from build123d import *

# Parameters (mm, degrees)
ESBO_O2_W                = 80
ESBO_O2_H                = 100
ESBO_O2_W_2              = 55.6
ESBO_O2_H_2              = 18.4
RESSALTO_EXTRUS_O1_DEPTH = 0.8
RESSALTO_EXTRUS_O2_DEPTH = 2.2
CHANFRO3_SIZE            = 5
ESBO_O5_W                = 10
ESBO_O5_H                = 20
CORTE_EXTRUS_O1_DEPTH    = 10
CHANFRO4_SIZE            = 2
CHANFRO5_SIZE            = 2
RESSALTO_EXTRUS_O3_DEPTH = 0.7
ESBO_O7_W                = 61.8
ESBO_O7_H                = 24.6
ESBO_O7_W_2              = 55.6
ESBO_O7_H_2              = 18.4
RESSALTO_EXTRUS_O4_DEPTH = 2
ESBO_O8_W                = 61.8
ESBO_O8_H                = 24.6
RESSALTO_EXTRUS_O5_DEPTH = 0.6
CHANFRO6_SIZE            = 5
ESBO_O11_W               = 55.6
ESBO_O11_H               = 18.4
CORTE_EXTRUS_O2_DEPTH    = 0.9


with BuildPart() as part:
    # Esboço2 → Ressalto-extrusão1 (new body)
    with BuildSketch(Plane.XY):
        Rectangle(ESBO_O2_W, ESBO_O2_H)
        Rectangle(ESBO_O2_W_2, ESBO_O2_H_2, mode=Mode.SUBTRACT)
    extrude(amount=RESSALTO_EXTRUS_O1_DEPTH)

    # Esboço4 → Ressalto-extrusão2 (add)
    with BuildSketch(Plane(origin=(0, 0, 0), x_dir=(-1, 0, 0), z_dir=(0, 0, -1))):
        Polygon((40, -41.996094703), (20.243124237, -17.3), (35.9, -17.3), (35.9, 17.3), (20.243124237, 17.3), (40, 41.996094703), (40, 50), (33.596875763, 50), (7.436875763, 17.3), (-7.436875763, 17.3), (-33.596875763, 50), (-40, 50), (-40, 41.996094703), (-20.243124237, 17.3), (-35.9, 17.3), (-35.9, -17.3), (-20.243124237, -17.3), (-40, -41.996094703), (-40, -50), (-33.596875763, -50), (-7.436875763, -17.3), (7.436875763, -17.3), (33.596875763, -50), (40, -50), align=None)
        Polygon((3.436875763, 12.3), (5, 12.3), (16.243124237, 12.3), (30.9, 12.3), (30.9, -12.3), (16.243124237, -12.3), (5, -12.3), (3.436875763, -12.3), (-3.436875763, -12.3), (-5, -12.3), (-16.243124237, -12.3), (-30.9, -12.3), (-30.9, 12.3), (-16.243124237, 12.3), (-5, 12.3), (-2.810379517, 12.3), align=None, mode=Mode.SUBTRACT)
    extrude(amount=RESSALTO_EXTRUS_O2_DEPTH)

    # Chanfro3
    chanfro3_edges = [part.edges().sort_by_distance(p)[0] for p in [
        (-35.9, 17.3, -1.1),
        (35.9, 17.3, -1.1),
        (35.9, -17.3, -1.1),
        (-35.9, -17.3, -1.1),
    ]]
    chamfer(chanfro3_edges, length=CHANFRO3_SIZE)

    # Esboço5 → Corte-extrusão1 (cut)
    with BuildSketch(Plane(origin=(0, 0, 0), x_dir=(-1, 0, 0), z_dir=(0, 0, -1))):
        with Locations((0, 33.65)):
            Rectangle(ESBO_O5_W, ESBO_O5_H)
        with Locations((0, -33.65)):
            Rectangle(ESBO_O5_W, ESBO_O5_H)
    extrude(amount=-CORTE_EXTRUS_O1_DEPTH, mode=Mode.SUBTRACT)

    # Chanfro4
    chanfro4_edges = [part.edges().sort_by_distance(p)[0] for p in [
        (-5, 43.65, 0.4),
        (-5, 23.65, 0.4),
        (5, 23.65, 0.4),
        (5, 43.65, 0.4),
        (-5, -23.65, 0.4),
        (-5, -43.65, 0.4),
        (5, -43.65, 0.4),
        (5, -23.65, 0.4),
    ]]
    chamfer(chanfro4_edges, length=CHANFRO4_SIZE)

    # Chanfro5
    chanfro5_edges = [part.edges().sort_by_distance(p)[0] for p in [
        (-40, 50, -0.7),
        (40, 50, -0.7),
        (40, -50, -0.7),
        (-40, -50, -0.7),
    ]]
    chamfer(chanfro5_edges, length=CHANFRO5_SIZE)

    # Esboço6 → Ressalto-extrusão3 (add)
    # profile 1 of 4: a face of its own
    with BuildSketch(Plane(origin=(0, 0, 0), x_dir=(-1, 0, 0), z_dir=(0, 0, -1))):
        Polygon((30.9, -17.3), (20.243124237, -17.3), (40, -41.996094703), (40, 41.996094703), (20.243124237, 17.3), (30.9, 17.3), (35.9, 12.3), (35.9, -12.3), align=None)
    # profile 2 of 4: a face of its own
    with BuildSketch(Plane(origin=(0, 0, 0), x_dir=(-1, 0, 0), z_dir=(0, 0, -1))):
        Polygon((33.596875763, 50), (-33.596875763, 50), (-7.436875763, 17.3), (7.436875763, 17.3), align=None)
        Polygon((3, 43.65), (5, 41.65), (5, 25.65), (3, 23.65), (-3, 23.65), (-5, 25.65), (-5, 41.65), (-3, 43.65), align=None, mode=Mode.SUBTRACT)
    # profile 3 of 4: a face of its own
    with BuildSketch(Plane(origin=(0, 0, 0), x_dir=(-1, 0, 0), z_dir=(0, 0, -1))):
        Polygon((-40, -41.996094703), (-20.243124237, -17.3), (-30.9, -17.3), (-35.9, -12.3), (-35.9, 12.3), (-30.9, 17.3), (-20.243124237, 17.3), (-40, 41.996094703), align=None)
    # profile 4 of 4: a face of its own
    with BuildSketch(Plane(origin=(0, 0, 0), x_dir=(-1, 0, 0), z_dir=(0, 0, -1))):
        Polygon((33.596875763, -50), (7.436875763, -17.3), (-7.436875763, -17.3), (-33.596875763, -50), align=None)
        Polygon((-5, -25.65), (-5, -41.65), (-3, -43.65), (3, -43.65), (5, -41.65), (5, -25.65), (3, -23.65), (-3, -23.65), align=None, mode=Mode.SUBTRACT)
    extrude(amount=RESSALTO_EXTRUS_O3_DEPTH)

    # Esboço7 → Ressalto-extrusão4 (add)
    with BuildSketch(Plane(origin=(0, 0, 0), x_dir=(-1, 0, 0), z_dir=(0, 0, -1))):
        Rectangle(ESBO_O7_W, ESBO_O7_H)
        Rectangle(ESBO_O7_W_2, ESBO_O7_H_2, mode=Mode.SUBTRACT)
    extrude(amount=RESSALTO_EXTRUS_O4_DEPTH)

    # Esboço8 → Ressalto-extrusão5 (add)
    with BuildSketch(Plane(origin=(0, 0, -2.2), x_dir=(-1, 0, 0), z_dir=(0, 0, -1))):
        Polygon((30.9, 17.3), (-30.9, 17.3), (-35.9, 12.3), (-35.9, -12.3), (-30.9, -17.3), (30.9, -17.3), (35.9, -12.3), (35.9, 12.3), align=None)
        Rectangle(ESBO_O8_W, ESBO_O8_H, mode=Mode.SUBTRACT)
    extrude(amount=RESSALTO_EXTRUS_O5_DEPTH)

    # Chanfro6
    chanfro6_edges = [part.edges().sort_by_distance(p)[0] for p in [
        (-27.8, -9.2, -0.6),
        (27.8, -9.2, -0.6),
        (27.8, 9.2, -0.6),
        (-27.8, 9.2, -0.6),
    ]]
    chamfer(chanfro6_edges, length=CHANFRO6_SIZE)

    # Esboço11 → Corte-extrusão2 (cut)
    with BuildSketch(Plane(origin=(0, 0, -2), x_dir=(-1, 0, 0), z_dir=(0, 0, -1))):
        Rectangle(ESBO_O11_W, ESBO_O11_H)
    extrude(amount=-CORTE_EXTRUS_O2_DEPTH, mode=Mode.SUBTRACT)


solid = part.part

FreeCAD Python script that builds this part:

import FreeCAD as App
import Part
import Sketcher
from FreeCAD import Vector


def edges_at(feature, points):
    """Names of the edges that pass closest to the given points."""
    edges = feature.Shape.Edges
    near = lambda p: min(range(len(edges)), key=lambda i: edges[i].distToShape(Part.Vertex(*p))[0])
    return sorted({f"Edge{near(p) + 1}" for p in points})


def add_polygon(sketch, points):
    """Adds a closed chain of lines whose ends are joined by coincident constraints."""
    first, n = sketch.GeometryCount, len(points)
    for a, b in zip(points, points[1:] + points[:1]):
        sketch.addGeometry(Part.LineSegment(App.Vector(*a, 0), App.Vector(*b, 0)), False)
    for i in range(n):
        sketch.addConstraint(Sketcher.Constraint("Coincident", first + i, 2, first + (i + 1) % n, 1))

doc = App.newDocument("Part")
body = doc.addObject("PartDesign::Body", "Body")

# Sketch on XY plane
sketch1 = body.newObject("Sketcher::SketchObject", "Sketch")
sketch1.AttachmentSupport = (doc.getObject("XY_Plane"), [""])
sketch1.MapMode = "FlatFace"
add_polygon(sketch1, [(-40, 50), (-40, -50), (40, -50), (40, 50)])  # lines 0-3
add_polygon(sketch1, [(28, -9), (-28, -9), (-28, 9), (28, 9)])  # lines 4-7
sketch1.addConstraint(Sketcher.Constraint("Vertical", 0))
sketch1.addConstraint(Sketcher.Constraint("Horizontal", 1))
sketch1.addConstraint(Sketcher.Constraint("Vertical", 2))
sketch1.addConstraint(Sketcher.Constraint("Horizontal", 3))
sketch1.addConstraint(Sketcher.Constraint("Horizontal", 4))
sketch1.addConstraint(Sketcher.Constraint("Vertical", 5))
sketch1.addConstraint(Sketcher.Constraint("Horizontal", 6))
sketch1.addConstraint(Sketcher.Constraint("Vertical", 7))
sketch1.addConstraint(Sketcher.Constraint("Symmetric", 0, 2, 2, 2, -1, 1))
sketch1.addConstraint(Sketcher.Constraint("Symmetric", 4, 2, 6, 2, -1, 1))
sketch1.addConstraint(Sketcher.Constraint("DistanceX", 1, 1, 1, 2, 80.0))
sketch1.addConstraint(Sketcher.Constraint("DistanceY", 0, 2, 0, 1, 100.0))
sketch1.addConstraint(Sketcher.Constraint("DistanceX", 4, 2, 4, 1, 55.6))
sketch1.addConstraint(Sketcher.Constraint("DistanceY", 5, 1, 5, 2, 18.4))
pad1 = body.newObject("PartDesign::Pad", "Pad")
pad1.Profile = sketch1
pad1.Length = 0.8

# Sketch on XY plane
sketch2 = body.newObject("Sketcher::SketchObject", "Sketch001")
sketch2.AttachmentSupport = (doc.getObject("XY_Plane"), [""])
sketch2.MapMode = "FlatFace"
add_polygon(sketch2, [(-40, -42), (-20, -17), (-36, -17), (-36, 17), (-20, 17), (-40, 42), (-40, 50), (-34, 50), (-7, 17), (7, 17), (34, 50), (40, 50), (40, 42), (20, 17), (36, 17), (36, -17), (20, -17), (40, -42), (40, -50), (34, -50), (7, -17), (-7, -17), (-34, -50), (-40, -50)])  # lines 0-23
add_polygon(sketch2, [(31, 12), (-31, 12), (-31, -12), (31, -12)])  # lines 24-27
sketch2.addConstraint(Sketcher.Constraint("Horizontal", 1))
sketch2.addConstraint(Sketcher.Constraint("Vertical", 2))
sketch2.addConstraint(Sketcher.Constraint("Horizontal", 3))
sketch2.addConstraint(Sketcher.Constraint("Vertical", 5))
sketch2.addConstraint(Sketcher.Constraint("Horizontal", 6))
sketch2.addConstraint(Sketcher.Constraint("Horizontal", 8))
sketch2.addConstraint(Sketcher.Constraint("Horizontal", 10))
sketch2.addConstraint(Sketcher.Constraint("Vertical", 11))
sketch2.addConstraint(Sketcher.Constraint("Horizontal", 13))
sketch2.addConstraint(Sketcher.Constraint("Vertical", 14))
sketch2.addConstraint(Sketcher.Constraint("Horizontal", 15))
sketch2.addConstraint(Sketcher.Constraint("Vertical", 17))
sketch2.addConstraint(Sketcher.Constraint("Horizontal", 18))
sketch2.addConstraint(Sketcher.Constraint("Horizontal", 20))
sketch2.addConstraint(Sketcher.Constraint("Horizontal", 22))
sketch2.addConstraint(Sketcher.Constraint("Vertical", 23))
sketch2.addConstraint(Sketcher.Constraint("Horizontal", 24))
sketch2.addConstraint(Sketcher.Constraint("Vertical", 25))
sketch2.addConstraint(Sketcher.Constraint("Horizontal", 26))
sketch2.addConstraint(Sketcher.Constraint("Vertical", 27))
sketch2.addConstraint(Sketcher.Constraint("Symmetric", 0, 2, 12, 2, -1, 1))
sketch2.addConstraint(Sketcher.Constraint("Symmetric", 2, 2, 14, 2, -1, 1))
sketch2.addConstraint(Sketcher.Constraint("Symmetric", 4, 2, 16, 2, -1, 1))
sketch2.addConstraint(Sketcher.Constraint("Symmetric", 6, 2, 18, 2, -1, 1))
sketch2.addConstraint(Sketcher.Constraint("Symmetric", 7, 2, 19, 2, -1, 1))
sketch2.addConstraint(Sketcher.Constraint("Symmetric", 9, 2, 21, 2, -1, 1))
sketch2.addConstraint(Sketcher.Constraint("Symmetric", 11, 2, 23, 2, -1, 1))
sketch2.addConstraint(Sketcher.Constraint("Symmetric", 24, 2, 26, 2, -1, 1))
sketch2.addConstraint(Sketcher.Constraint("Symmetric", 6, 2, 9, 2, -2))
sketch2.addConstraint(Sketcher.Constraint("Symmetric", 4, 2, 11, 2, -2))
sketch2.addConstraint(Sketcher.Constraint("Symmetric", 3, 2, 12, 2, -2))
sketch2.addConstraint(Sketcher.Constraint("Parallel", 4, 7))
sketch2.addConstraint(Sketcher.Constraint("Parallel", 0, 9))
sketch2.addConstraint(Sketcher.Constraint("Parallel", 7, 16))
sketch2.addConstraint(Sketcher.Constraint("Parallel", 12, 21))
sketch2.addConstraint(Sketcher.Constraint("Horizontal", 3, 2, 7, 2))
sketch2.addConstraint(Sketcher.Constraint("DistanceX", 24, 2, 24, 1, 61.8))
sketch2.addConstraint(Sketcher.Constraint("DistanceY", 2, 1, 2, 2, 34.6))
sketch2.addConstraint(Sketcher.Constraint("DistanceY", 25, 2, 25, 1, 24.6))
sketch2.addConstraint(Sketcher.Constraint("DistanceX", 4, 2, -1, 1, 40.0))
sketch2.addConstraint(Sketcher.Constraint("DistanceY", -1, 1, 5, 2, 50.0))
sketch2.addConstraint(Sketcher.Constraint("DistanceX", 2, 2, 24, 2, 5.0))
sketch2.addConstraint(Sketcher.Constraint("DistanceX", 6, 2, 7, 2, 26.16))
sketch2.addConstraint(Sketcher.Constraint("DistanceX", 3, 2, 8, 2, 27.68))
sketch2.addConstraint(Sketcher.Constraint("DistanceX", 8, 1, 8, 2, 14.873752))
pad2 = body.newObject("PartDesign::Pad", "Pad001")
pad2.Profile = sketch2
pad2.Length = 2.2
pad2.Reversed = True
doc.recompute()

chamfer = body.newObject("PartDesign::Chamfer", "Chamfer")
chamfer.Base = (pad2, edges_at(pad2, [
    (-35.9, 17.3, -1.1),
    (35.9, 17.3, -1.1),
    (35.9, -17.3, -1.1),
    (-35.9, -17.3, -1.1),
]))
chamfer.Size = 5

# Sketch on XY plane
sketch3 = body.newObject("Sketcher::SketchObject", "Sketch002")
sketch3.AttachmentSupport = (doc.getObject("XY_Plane"), [""])
sketch3.MapMode = "FlatFace"
add_polygon(sketch3, [(5, 44), (5, 24), (-5, 24), (-5, 44)])  # lines 0-3
add_polygon(sketch3, [(5, -24), (5, -44), (-5, -44), (-5, -24)])  # lines 4-7
sketch3.addConstraint(Sketcher.Constraint("Vertical", 0))
sketch3.addConstraint(Sketcher.Constraint("Horizontal", 1))
sketch3.addConstraint(Sketcher.Constraint("Vertical", 2))
sketch3.addConstraint(Sketcher.Constraint("Horizontal", 3))
sketch3.addConstraint(Sketcher.Constraint("Vertical", 4))
sketch3.addConstraint(Sketcher.Constraint("Horizontal", 5))
sketch3.addConstraint(Sketcher.Constraint("Vertical", 6))
sketch3.addConstraint(Sketcher.Constraint("Horizontal", 7))
sketch3.addConstraint(Sketcher.Constraint("Symmetric", 2, 2, 4, 2, -1, 1))
sketch3.addConstraint(Sketcher.Constraint("Symmetric", 0, 2, 6, 2, -1, 1))
sketch3.addConstraint(Sketcher.Constraint("Vertical", 3, 2, 4, 2))
sketch3.addConstraint(Sketcher.Constraint("DistanceX", 1, 2, 1, 1, 10.0))
sketch3.addConstraint(Sketcher.Constraint("DistanceY", 0, 2, 0, 1, 20.0))
sketch3.addConstraint(Sketcher.Constraint("DistanceY", 4, 2, 0, 2, 67.3))
pocket1 = body.newObject("PartDesign::Pocket", "Pocket")
pocket1.Profile = sketch3
pocket1.Length = 10
pocket1.Reversed = True
doc.recompute()

chamfer2 = body.newObject("PartDesign::Chamfer", "Chamfer001")
chamfer2.Base = (pocket1, edges_at(pocket1, [
    (-5, 43.65, 0.4),
    (-5, 23.65, 0.4),
    (5, 23.65, 0.4),
    (5, 43.65, 0.4),
    (-5, -23.65, 0.4),
    (-5, -43.65, 0.4),
    (5, -43.65, 0.4),
    (5, -23.65, 0.4),
]))
chamfer2.Size = 2
doc.recompute()

chamfer3 = body.newObject("PartDesign::Chamfer", "Chamfer002")
chamfer3.Base = (chamfer2, edges_at(chamfer2, [
    (-40, 50, -0.7),
    (40, 50, -0.7),
    (40, -50, -0.7),
    (-40, -50, -0.7),
]))
chamfer3.Size = 2

# Sketch on XY plane
sketch4 = body.newObject("Sketcher::SketchObject", "Sketch003")
sketch4.AttachmentSupport = (doc.getObject("XY_Plane"), [""])
sketch4.MapMode = "FlatFace"
add_polygon(sketch4, [(-30.9, -17.3), (-20.2, -17.3), (-40, -42), (-40, 42), (-20.2, 17.3), (-30.9, 17.3), (-35.9, 12.3), (-35.9, -12.3)])  # lines 0-7
add_polygon(sketch4, [(-33.6, 50), (33.6, 50), (7.4, 17.3), (-7.4, 17.3)])  # lines 8-11
add_polygon(sketch4, [(3, 43.6), (-3, 43.6), (-5, 41.6), (-5, 25.6), (-3, 23.6), (3, 23.6), (5, 25.6), (5, 41.6)])  # lines 12-19
add_polygon(sketch4, [(40, -42), (20.2, -17.3), (30.9, -17.3), (35.9, -12.3), (35.9, 12.3), (30.9, 17.3), (20.2, 17.3), (40, 42)])  # lines 20-27
add_polygon(sketch4, [(-33.6, -50), (-7.4, -17.3), (7.4, -17.3), (33.6, -50)])  # lines 28-31
add_polygon(sketch4, [(5, -41.6), (5, -25.6), (3, -23.6), (-3, -23.6), (-5, -25.6), (-5, -41.6), (-3, -43.6), (3, -43.6)])  # lines 32-39
sketch4.addConstraint(Sketcher.Constraint("Horizontal", 0))
sketch4.addConstraint(Sketcher.Constraint("Vertical", 2))
sketch4.addConstraint(Sketcher.Constraint("Horizontal", 4))
sketch4.addConstraint(Sketcher.Constraint("Vertical", 6))
sketch4.addConstraint(Sketcher.Constraint("Horizontal", 8))
sketch4.addConstraint(Sketcher.Constraint("Horizontal", 10))
sketch4.addConstraint(Sketcher.Constraint("Horizontal", 12))
sketch4.addConstraint(Sketcher.Constraint("Vertical", 14))
sketch4.addConstraint(Sketcher.Constraint("Horizontal", 16))
sketch4.addConstraint(Sketcher.Constraint("Vertical", 18))
sketch4.addConstraint(Sketcher.Constraint("Horizontal", 21))
sketch4.addConstraint(Sketcher.Constraint("Vertical", 23))
sketch4.addConstraint(Sketcher.Constraint("Horizontal", 25))
sketch4.addConstraint(Sketcher.Constraint("Vertical", 27))
sketch4.addConstraint(Sketcher.Constraint("Horizontal", 29))
sketch4.addConstraint(Sketcher.Constraint("Horizontal", 31))
sketch4.addConstraint(Sketcher.Constraint("Vertical", 32))
sketch4.addConstraint(Sketcher.Constraint("Horizontal", 34))
sketch4.addConstraint(Sketcher.Constraint("Vertical", 36))
sketch4.addConstraint(Sketcher.Constraint("Horizontal", 38))
sketch4.addConstraint(Sketcher.Constraint("Symmetric", 3, 2, 20, 2, -1, 1))
sketch4.addConstraint(Sketcher.Constraint("Symmetric", 5, 2, 22, 2, -1, 1))
sketch4.addConstraint(Sketcher.Constraint("Symmetric", 7, 2, 24, 2, -1, 1))
sketch4.addConstraint(Sketcher.Constraint("Symmetric", 1, 2, 26, 2, -1, 1))
sketch4.addConstraint(Sketcher.Constraint("Symmetric", 9, 2, 28, 2, -1, 1))
sketch4.addConstraint(Sketcher.Constraint("Symmetric", 11, 2, 30, 2, -1, 1))
sketch4.addConstraint(Sketcher.Constraint("Symmetric", 14, 2, 32, 2, -1, 1))
sketch4.addConstraint(Sketcher.Constraint("Symmetric", 15, 2, 33, 2, -1, 1))
sketch4.addConstraint(Sketcher.Constraint("Symmetric", 17, 2, 35, 2, -1, 1))
sketch4.addConstraint(Sketcher.Constraint("Symmetric", 19, 2, 37, 2, -1, 1))
sketch4.addConstraint(Sketcher.Constraint("Symmetric", 14, 2, 17, 2, -2))
sketch4.addConstraint(Sketcher.Constraint("Symmetric", 0, 2, 20, 2, -2))
sketch4.addConstraint(Sketcher.Constraint("Perpendicular", 5, 7))
sketch4.addConstraint(Sketcher.Constraint("Parallel", 1, 9))
sketch4.addConstraint(Sketcher.Constraint("Parallel", 3, 11))
sketch4.addConstraint(Sketcher.Constraint("Perpendicular", 7, 13))
sketch4.addConstraint(Sketcher.Constraint("Perpendicular", 13, 15))
sketch4.addConstraint(Sketcher.Constraint("Perpendicular", 15, 17))
sketch4.addConstraint(Sketcher.Constraint("Perpendicular", 17, 19))
sketch4.addConstraint(Sketcher.Constraint("Parallel", 11, 20))
sketch4.addConstraint(Sketcher.Constraint("Perpendicular", 19, 22))
sketch4.addConstraint(Sketcher.Constraint("Perpendicular", 22, 24))
sketch4.addConstraint(Sketcher.Constraint("Parallel", 9, 26))
sketch4.addConstraint(Sketcher.Constraint("Parallel", 26, 28))
sketch4.addConstraint(Sketcher.Constraint("Parallel", 20, 30))
sketch4.addConstraint(Sketcher.Constraint("Perpendicular", 33, 35))
sketch4.addConstraint(Sketcher.Constraint("Perpendicular", 35, 37))
sketch4.addConstraint(Sketcher.Constraint("Perpendicular", 37, 39))
sketch4.addConstraint(Sketcher.Constraint("Horizontal", 4, 2, 9, 2))
sketch4.addConstraint(Sketcher.Constraint("Horizontal", 13, 2, 18, 2))
sketch4.addConstraint(Sketcher.Constraint("Horizontal", 6, 2, 22, 2))
sketch4.addConstraint(Sketcher.Constraint("Horizontal", 2, 2, 26, 2))
sketch4.addConstraint(Sketcher.Constraint("Horizontal", 36, 2, 39, 2))
sketch4.addConstraint(Sketcher.Constraint("Vertical", 4, 2, 7, 2))
sketch4.addConstraint(Sketcher.Constraint("Vertical", 12, 2, 15, 2))
sketch4.addConstraint(Sketcher.Constraint("Vertical", 10, 2, 28, 2))
sketch4.addConstraint(Sketcher.Constraint("DistanceX", 12, 2, 12, 1, 6.0))
sketch4.addConstraint(Sketcher.Constraint("DistanceY", 14, 2, 14, 1, 16.0))
sketch4.addConstraint(Sketcher.Constraint("DistanceY", 6, 2, 6, 1, 24.6))
sketch4.addConstraint(Sketcher.Constraint("DistanceX", 1, 2, -1, 1, 40.0))
sketch4.addConstraint(Sketcher.Constraint("DistanceY", -1, 1, 8, 2, 50.0))
sketch4.addConstraint(Sketcher.Constraint("DistanceX", 13, 2, -1, 1, 5.0))
sketch4.addConstraint(Sketcher.Constraint("DistanceX", 5, 2, 4, 2, 5.0))
sketch4.addConstraint(Sketcher.Constraint("DistanceX", 4, 2, -1, 1, 30.9))
sketch4.addConstraint(Sketcher.Constraint("DistanceY", -1, 1, 12, 2, 43.65))
sketch4.addConstraint(Sketcher.Constraint("DistanceX", 3, 2, 8, 2, 53.84))
sketch4.addConstraint(Sketcher.Constraint("DistanceX", 3, 2, 9, 2, 27.68))
sketch4.addConstraint(Sketcher.Constraint("DistanceX", 8, 1, 8, 2, 67.193752))
pad3 = body.newObject("PartDesign::Pad", "Pad002")
pad3.Profile = sketch4
pad3.Length = 0.7
pad3.Reversed = True

# Sketch on XY plane
sketch5 = body.newObject("Sketcher::SketchObject", "Sketch004")
sketch5.AttachmentSupport = (doc.getObject("XY_Plane"), [""])
sketch5.MapMode = "FlatFace"
add_polygon(sketch5, [(31, 12), (31, -12), (-31, -12), (-31, 12)])  # lines 0-3
add_polygon(sketch5, [(-28, -9), (28, -9), (28, 9), (-28, 9)])  # lines 4-7
sketch5.addConstraint(Sketcher.Constraint("Vertical", 0))
sketch5.addConstraint(Sketcher.Constraint("Horizontal", 1))
sketch5.addConstraint(Sketcher.Constraint("Vertical", 2))
sketch5.addConstraint(Sketcher.Constraint("Horizontal", 3))
sketch5.addConstraint(Sketcher.Constraint("Horizontal", 4))
sketch5.addConstraint(Sketcher.Constraint("Vertical", 5))
sketch5.addConstraint(Sketcher.Constraint("Horizontal", 6))
sketch5.addConstraint(Sketcher.Constraint("Vertical", 7))
sketch5.addConstraint(Sketcher.Constraint("Symmetric", 0, 2, 2, 2, -1, 1))
sketch5.addConstraint(Sketcher.Constraint("Symmetric", 4, 2, 6, 2, -1, 1))
sketch5.addConstraint(Sketcher.Constraint("DistanceX", 1, 2, 1, 1, 61.8))
sketch5.addConstraint(Sketcher.Constraint("DistanceX", 4, 1, 4, 2, 55.6))
sketch5.addConstraint(Sketcher.Constraint("DistanceY", 0, 2, 0, 1, 24.6))
sketch5.addConstraint(Sketcher.Constraint("DistanceY", 5, 1, 5, 2, 18.4))
pad4 = body.newObject("PartDesign::Pad", "Pad003")
pad4.Profile = sketch5
pad4.Length = 2
pad4.Reversed = True

# Sketch on XY plane
sketch6 = body.newObject("Sketcher::SketchObject", "Sketch005")
sketch6.AttachmentSupport = (doc.getObject("XY_Plane"), [""])
sketch6.MapMode = "FlatFace"
sketch6.AttachmentOffset = App.Placement(Vector(0, 0, -2.2), App.Rotation())
add_polygon(sketch6, [(-31, 17), (31, 17), (36, 12), (36, -12), (31, -17), (-31, -17), (-36, -12), (-36, 12)])  # lines 0-7
add_polygon(sketch6, [(-31, -12), (31, -12), (31, 12), (-31, 12)])  # lines 8-11
sketch6.addConstraint(Sketcher.Constraint("Horizontal", 0))
sketch6.addConstraint(Sketcher.Constraint("Vertical", 2))
sketch6.addConstraint(Sketcher.Constraint("Horizontal", 4))
sketch6.addConstraint(Sketcher.Constraint("Vertical", 6))
sketch6.addConstraint(Sketcher.Constraint("Horizontal", 8))
sketch6.addConstraint(Sketcher.Constraint("Vertical", 9))
sketch6.addConstraint(Sketcher.Constraint("Horizontal", 10))
sketch6.addConstraint(Sketcher.Constraint("Vertical", 11))
sketch6.addConstraint(Sketcher.Constraint("Symmetric", 0, 2, 4, 2, -1, 1))
sketch6.addConstraint(Sketcher.Constraint("Symmetric", 1, 2, 5, 2, -1, 1))
sketch6.addConstraint(Sketcher.Constraint("Symmetric", 8, 2, 10, 2, -1, 1))
sketch6.addConstraint(Sketcher.Constraint("Perpendicular", 1, 3))
sketch6.addConstraint(Sketcher.Constraint("Perpendicular", 5, 7))
sketch6.addConstraint(Sketcher.Constraint("Horizontal", 2, 2, 5, 2))
sketch6.addConstraint(Sketcher.Constraint("Horizontal", 1, 2, 6, 2))
sketch6.addConstraint(Sketcher.Constraint("Horizontal", 5, 2, 8, 2))
sketch6.addConstraint(Sketcher.Constraint("Vertical", 0, 2, 3, 2))
sketch6.addConstraint(Sketcher.Constraint("Vertical", 3, 2, 8, 2))
sketch6.addConstraint(Sketcher.Constraint("DistanceX", 0, 1, 0, 2, 61.8))
sketch6.addConstraint(Sketcher.Constraint("DistanceY", 2, 2, 2, 1, 24.6))
sketch6.addConstraint(Sketcher.Constraint("DistanceX", 0, 2, 1, 2, 5.0))
pad5 = body.newObject("PartDesign::Pad", "Pad004")
pad5.Profile = sketch6
pad5.Length = 0.6
pad5.Reversed = True
doc.recompute()

chamfer4 = body.newObject("PartDesign::Chamfer", "Chamfer003")
chamfer4.Base = (pad5, edges_at(pad5, [
    (-27.8, -9.2, -0.6),
    (27.8, -9.2, -0.6),
    (27.8, 9.2, -0.6),
    (-27.8, 9.2, -0.6),
]))
chamfer4.Size = 5

# Sketch on XY plane
sketch7 = body.newObject("Sketcher::SketchObject", "Sketch006")
sketch7.AttachmentSupport = (doc.getObject("XY_Plane"), [""])
sketch7.MapMode = "FlatFace"
sketch7.AttachmentOffset = App.Placement(Vector(0, 0, -2), App.Rotation())
add_polygon(sketch7, [(28, 9), (28, -9), (-28, -9), (-28, 9)])  # lines 0-3
sketch7.addConstraint(Sketcher.Constraint("Vertical", 0))
sketch7.addConstraint(Sketcher.Constraint("Horizontal", 1))
sketch7.addConstraint(Sketcher.Constraint("Vertical", 2))
sketch7.addConstraint(Sketcher.Constraint("Horizontal", 3))
sketch7.addConstraint(Sketcher.Constraint("Symmetric", 0, 2, 2, 2, -1, 1))
sketch7.addConstraint(Sketcher.Constraint("DistanceX", 1, 2, 1, 1, 55.6))
sketch7.addConstraint(Sketcher.Constraint("DistanceY", 0, 2, 0, 1, 18.4))
pocket2 = body.newObject("PartDesign::Pocket", "Pocket001")
pocket2.Profile = sketch7
pocket2.Length = 0.9
pocket2.Reversed = True

doc.recompute()
